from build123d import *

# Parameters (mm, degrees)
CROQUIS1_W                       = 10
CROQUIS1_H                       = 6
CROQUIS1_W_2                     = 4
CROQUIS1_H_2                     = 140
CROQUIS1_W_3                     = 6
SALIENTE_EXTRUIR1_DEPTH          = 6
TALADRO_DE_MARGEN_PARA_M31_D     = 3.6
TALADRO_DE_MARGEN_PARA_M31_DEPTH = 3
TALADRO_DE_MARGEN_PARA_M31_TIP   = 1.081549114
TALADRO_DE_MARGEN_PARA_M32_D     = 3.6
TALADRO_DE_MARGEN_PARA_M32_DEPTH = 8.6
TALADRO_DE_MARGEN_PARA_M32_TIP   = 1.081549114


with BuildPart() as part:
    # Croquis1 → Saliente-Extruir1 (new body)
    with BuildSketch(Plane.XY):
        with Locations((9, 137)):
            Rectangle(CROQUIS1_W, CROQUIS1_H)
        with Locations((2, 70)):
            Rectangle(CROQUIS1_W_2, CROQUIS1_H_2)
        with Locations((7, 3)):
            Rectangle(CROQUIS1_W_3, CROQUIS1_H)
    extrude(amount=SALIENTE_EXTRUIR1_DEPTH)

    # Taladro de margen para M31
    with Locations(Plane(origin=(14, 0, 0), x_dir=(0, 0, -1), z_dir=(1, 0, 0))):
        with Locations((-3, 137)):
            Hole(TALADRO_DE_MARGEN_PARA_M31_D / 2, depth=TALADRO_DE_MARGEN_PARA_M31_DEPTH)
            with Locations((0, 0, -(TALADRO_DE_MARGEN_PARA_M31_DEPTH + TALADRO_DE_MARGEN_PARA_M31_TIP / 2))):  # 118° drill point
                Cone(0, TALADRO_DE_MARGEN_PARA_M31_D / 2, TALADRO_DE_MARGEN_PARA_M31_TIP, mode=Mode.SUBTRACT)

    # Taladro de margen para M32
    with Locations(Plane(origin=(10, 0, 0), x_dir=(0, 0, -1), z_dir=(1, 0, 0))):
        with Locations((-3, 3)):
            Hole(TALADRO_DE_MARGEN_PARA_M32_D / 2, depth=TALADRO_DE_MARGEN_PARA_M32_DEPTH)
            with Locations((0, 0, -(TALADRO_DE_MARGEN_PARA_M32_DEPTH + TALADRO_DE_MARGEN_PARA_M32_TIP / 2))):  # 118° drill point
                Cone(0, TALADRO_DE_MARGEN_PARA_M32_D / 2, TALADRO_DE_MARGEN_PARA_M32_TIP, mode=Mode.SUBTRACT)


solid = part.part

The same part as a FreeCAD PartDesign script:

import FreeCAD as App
import Part
import Sketcher

V = App.Vector
Q = App.Units.Quantity

doc = App.newDocument("Part")
body = doc.addObject("PartDesign::Body", "Body")

sketch1 = doc.addObject("Sketcher::SketchObject", "Sketch")
body.addObject(sketch1)
sketch1.AttachmentSupport = (doc.XY_Plane, [""])
sketch1.MapMode = "FlatFace"
sketch1.addGeometry([
    Part.LineSegment(V(4, 134, 0), V(14, 134, 0)),
    Part.LineSegment(V(14, 134, 0), V(14, 140, 0)),
    Part.LineSegment(V(14, 140, 0), V(0, 140, 0)),
    Part.LineSegment(V(0, 140, 0), V(0, 0, 0)),
    Part.LineSegment(V(0, 0, 0), V(10, 0, 0)),
    Part.LineSegment(V(10, 0, 0), V(10, 6, 0)),
    Part.LineSegment(V(10, 6, 0), V(4, 6, 0)),
    Part.LineSegment(V(4, 6, 0), V(4, 134, 0)),
], False)
sketch1.addConstraint([
    Sketcher.Constraint("Coincident", 0, 2, 1, 1),
    Sketcher.Constraint("Coincident", 1, 2, 2, 1),
    Sketcher.Constraint("Coincident", 2, 2, 3, 1),
    Sketcher.Constraint("Coincident", 3, 2, 4, 1),
    Sketcher.Constraint("Coincident", 4, 2, 5, 1),
    Sketcher.Constraint("Coincident", 5, 2, 6, 1),
    Sketcher.Constraint("Coincident", 6, 2, 7, 1),
    Sketcher.Constraint("Coincident", 7, 2, 0, 1),
    Sketcher.Constraint("Horizontal", 0),
    Sketcher.Constraint("Vertical", 1),
    Sketcher.Constraint("Horizontal", 2),
    Sketcher.Constraint("Vertical", 3),
    Sketcher.Constraint("Horizontal", 4),
    Sketcher.Constraint("Vertical", 5),
    Sketcher.Constraint("Horizontal", 6),
    Sketcher.Constraint("Vertical", 7),
    Sketcher.Constraint("Coincident", 3, 2, -1, 1),
    Sketcher.Constraint("Equal", 0, 4),
    Sketcher.Constraint("Equal", 6, 1),
    Sketcher.Constraint("Equal", 1, 5),
    Sketcher.Constraint("DistanceX", 0, 1, 0, 2, Q("10 mm")),
    Sketcher.Constraint("DistanceX", 2, 2, 2, 1, Q("14 mm")),
    Sketcher.Constraint("DistanceY", 3, 2, 3, 1, Q("140 mm")),
])
pad1 = doc.addObject("PartDesign::Pad", "Pad")
body.addObject(pad1)
pad1.Profile = sketch1
pad1.Length = 6

sketch2 = doc.addObject("Sketcher::SketchObject", "Sketch001")
body.addObject(sketch2)
sketch2.AttachmentSupport = (doc.YZ_Plane, [""])
sketch2.MapMode = "FlatFace"
sketch2.AttachmentOffset = App.Placement(V(0, 0, 14), App.Rotation())
sketch2.addGeometry(Part.Circle(V(137, 3, 0), V(0, 0, 1), 1.8), False)
sketch2.addConstraint([
    Sketcher.Constraint("Diameter", 0, Q("3.6 mm")),
    Sketcher.Constraint("DistanceX", -1, 1, 0, 3, Q("137 mm")),
    Sketcher.Constraint("DistanceY", -1, 1, 0, 3, Q("3 mm")),
])
doc.recompute()
hole = doc.addObject("PartDesign::Hole", "Hole")
body.addObject(hole)
hole.Profile = sketch2
hole.ThreadType = "None"
hole.Diameter = 3.6
hole.DepthType = "Dimension"
hole.Depth = 3
hole.DrillPoint = "Angled"
hole.DrillPointAngle = 118

sketch3 = doc.addObject("Sketcher::SketchObject", "Sketch002")
body.addObject(sketch3)
sketch3.AttachmentSupport = (doc.YZ_Plane, [""])
sketch3.MapMode = "FlatFace"
sketch3.AttachmentOffset = App.Placement(V(0, 0, 10), App.Rotation())
sketch3.addGeometry(Part.Circle(V(3, 3, 0), V(0, 0, 1), 1.8), False)
sketch3.addConstraint([
    Sketcher.Constraint("Diameter", 0, Q("3.6 mm")),
    Sketcher.Constraint("DistanceX", -1, 1, 0, 3, Q("3 mm")),
    Sketcher.Constraint("DistanceY", -1, 1, 0, 3, Q("3 mm")),
])
doc.recompute()
hole2 = doc.addObject("PartDesign::Hole", "Hole001")
body.addObject(hole2)
hole2.Profile = sketch3
hole2.ThreadType = "None"
hole2.Diameter = 3.6
hole2.DepthType = "Dimension"
hole2.Depth = 8.6
hole2.DrillPoint = "Angled"
hole2.DrillPointAngle = 118

doc.recompute()
